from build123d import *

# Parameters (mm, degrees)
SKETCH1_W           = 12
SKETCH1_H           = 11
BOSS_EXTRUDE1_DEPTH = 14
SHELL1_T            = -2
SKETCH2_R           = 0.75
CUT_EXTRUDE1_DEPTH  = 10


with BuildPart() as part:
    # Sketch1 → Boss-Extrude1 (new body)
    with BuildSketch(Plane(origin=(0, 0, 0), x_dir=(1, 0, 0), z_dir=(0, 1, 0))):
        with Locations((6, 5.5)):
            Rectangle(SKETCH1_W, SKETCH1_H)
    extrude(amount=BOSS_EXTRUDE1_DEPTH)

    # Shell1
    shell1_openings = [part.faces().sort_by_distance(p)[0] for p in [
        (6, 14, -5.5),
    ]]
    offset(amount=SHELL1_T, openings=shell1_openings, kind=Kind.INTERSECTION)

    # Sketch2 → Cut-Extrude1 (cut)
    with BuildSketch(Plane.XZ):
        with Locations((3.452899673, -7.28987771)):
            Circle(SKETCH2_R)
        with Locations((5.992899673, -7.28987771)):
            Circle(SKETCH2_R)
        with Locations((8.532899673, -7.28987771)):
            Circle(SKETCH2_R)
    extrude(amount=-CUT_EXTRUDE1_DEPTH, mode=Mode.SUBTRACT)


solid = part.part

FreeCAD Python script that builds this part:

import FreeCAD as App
import Part
import Sketcher
Q = App.Units.Quantity


def faces_at(feature, points):
    """Names of the faces that lie closest to the given points."""
    faces = feature.Shape.Faces
    near = lambda p: min(range(len(faces)), key=lambda i: faces[i].distToShape(Part.Vertex(*p))[0])
    return sorted({f"Face{near(p) + 1}" for p in points})

doc = App.newDocument("Part")
body = doc.addObject("PartDesign::Body", "Body")

sketch1 = body.newObject("Sketcher::SketchObject", "Sketch")
sketch1.AttachmentSupport = (doc.getObject("XZ_Plane"), [""])
sketch1.MapMode = "FlatFace"
sketch1.addGeometry([
    Part.LineSegment(App.Vector(0, -11, 0), App.Vector(0, 0, 0)),
    Part.LineSegment(App.Vector(0, 0, 0), App.Vector(12, 0, 0)),
    Part.LineSegment(App.Vector(12, 0, 0), App.Vector(12, -11, 0)),
    Part.LineSegment(App.Vector(12, -11, 0), App.Vector(0, -11, 0)),
], False)
sketch1.addConstraint([
    Sketcher.Constraint("Coincident", 0, 2, 1, 1),
    Sketcher.Constraint("Coincident", 1, 2, 2, 1),
    Sketcher.Constraint("Coincident", 2, 2, 3, 1),
    Sketcher.Constraint("Coincident", 3, 2, 0, 1),
    Sketcher.Constraint("Vertical", 0),
    Sketcher.Constraint("Horizontal", 1),
    Sketcher.Constraint("Vertical", 2),
    Sketcher.Constraint("Horizontal", 3),
    Sketcher.Constraint("Coincident", 0, 2, -1, 1),
    Sketcher.Constraint("DistanceX", 1, 1, 1, 2, Q("12 mm")),
    Sketcher.Constraint("DistanceY", 0, 1, 0, 2, Q("11 mm")),
])
pad1 = body.newObject("PartDesign::Pad", "Pad")
pad1.Profile = sketch1
pad1.Length = 14
pad1.Reversed = True
doc.recompute()

thickness = body.newObject("PartDesign::Thickness", "Thickness")
thickness.Base = (pad1, faces_at(pad1, [(6, 14, -5.5)]))
thickness.Value = 2
thickness.Reversed = True
thickness.Join = "Intersection"

sketch2 = body.newObject("Sketcher::SketchObject", "Sketch001")
sketch2.AttachmentSupport = (doc.getObject("XZ_Plane"), [""])
sketch2.MapMode = "FlatFace"
sketch2.addGeometry([
    Part.Circle(App.Vector(3.4529, -7.289878, 0), App.Vector(0, 0, 1), 0.75),
    Part.Circle(App.Vector(5.9929, -7.289878, 0), App.Vector(0, 0, 1), 0.75),
    Part.Circle(App.Vector(8.5329, -7.289878, 0), App.Vector(0, 0, 1), 0.75),
], False)
sketch2.addConstraint([
    Sketcher.Constraint("Equal", 0, 1),
    Sketcher.Constraint("Equal", 1, 2),
    Sketcher.Constraint("Horizontal", 0, 3, 1, 3),
    Sketcher.Constraint("Horizontal", 1, 3, 2, 3),
    Sketcher.Constraint("Diameter", 0, Q("1.5 mm")),
    Sketcher.Constraint("DistanceX", 0, 3, 1, 3, Q("2.54 mm")),
    Sketcher.Constraint("DistanceX", 1, 3, 2, 3, Q("2.54 mm")),
    Sketcher.Constraint("DistanceX", -1, 1, 0, 3, Q("3.4529 mm")),
    Sketcher.Constraint("DistanceY", 0, 3, -1, 1, Q("7.289878 mm")),
])
pocket1 = body.newObject("PartDesign::Pocket", "Pocket")
pocket1.Profile = sketch2
pocket1.Length = 10

doc.recompute()
